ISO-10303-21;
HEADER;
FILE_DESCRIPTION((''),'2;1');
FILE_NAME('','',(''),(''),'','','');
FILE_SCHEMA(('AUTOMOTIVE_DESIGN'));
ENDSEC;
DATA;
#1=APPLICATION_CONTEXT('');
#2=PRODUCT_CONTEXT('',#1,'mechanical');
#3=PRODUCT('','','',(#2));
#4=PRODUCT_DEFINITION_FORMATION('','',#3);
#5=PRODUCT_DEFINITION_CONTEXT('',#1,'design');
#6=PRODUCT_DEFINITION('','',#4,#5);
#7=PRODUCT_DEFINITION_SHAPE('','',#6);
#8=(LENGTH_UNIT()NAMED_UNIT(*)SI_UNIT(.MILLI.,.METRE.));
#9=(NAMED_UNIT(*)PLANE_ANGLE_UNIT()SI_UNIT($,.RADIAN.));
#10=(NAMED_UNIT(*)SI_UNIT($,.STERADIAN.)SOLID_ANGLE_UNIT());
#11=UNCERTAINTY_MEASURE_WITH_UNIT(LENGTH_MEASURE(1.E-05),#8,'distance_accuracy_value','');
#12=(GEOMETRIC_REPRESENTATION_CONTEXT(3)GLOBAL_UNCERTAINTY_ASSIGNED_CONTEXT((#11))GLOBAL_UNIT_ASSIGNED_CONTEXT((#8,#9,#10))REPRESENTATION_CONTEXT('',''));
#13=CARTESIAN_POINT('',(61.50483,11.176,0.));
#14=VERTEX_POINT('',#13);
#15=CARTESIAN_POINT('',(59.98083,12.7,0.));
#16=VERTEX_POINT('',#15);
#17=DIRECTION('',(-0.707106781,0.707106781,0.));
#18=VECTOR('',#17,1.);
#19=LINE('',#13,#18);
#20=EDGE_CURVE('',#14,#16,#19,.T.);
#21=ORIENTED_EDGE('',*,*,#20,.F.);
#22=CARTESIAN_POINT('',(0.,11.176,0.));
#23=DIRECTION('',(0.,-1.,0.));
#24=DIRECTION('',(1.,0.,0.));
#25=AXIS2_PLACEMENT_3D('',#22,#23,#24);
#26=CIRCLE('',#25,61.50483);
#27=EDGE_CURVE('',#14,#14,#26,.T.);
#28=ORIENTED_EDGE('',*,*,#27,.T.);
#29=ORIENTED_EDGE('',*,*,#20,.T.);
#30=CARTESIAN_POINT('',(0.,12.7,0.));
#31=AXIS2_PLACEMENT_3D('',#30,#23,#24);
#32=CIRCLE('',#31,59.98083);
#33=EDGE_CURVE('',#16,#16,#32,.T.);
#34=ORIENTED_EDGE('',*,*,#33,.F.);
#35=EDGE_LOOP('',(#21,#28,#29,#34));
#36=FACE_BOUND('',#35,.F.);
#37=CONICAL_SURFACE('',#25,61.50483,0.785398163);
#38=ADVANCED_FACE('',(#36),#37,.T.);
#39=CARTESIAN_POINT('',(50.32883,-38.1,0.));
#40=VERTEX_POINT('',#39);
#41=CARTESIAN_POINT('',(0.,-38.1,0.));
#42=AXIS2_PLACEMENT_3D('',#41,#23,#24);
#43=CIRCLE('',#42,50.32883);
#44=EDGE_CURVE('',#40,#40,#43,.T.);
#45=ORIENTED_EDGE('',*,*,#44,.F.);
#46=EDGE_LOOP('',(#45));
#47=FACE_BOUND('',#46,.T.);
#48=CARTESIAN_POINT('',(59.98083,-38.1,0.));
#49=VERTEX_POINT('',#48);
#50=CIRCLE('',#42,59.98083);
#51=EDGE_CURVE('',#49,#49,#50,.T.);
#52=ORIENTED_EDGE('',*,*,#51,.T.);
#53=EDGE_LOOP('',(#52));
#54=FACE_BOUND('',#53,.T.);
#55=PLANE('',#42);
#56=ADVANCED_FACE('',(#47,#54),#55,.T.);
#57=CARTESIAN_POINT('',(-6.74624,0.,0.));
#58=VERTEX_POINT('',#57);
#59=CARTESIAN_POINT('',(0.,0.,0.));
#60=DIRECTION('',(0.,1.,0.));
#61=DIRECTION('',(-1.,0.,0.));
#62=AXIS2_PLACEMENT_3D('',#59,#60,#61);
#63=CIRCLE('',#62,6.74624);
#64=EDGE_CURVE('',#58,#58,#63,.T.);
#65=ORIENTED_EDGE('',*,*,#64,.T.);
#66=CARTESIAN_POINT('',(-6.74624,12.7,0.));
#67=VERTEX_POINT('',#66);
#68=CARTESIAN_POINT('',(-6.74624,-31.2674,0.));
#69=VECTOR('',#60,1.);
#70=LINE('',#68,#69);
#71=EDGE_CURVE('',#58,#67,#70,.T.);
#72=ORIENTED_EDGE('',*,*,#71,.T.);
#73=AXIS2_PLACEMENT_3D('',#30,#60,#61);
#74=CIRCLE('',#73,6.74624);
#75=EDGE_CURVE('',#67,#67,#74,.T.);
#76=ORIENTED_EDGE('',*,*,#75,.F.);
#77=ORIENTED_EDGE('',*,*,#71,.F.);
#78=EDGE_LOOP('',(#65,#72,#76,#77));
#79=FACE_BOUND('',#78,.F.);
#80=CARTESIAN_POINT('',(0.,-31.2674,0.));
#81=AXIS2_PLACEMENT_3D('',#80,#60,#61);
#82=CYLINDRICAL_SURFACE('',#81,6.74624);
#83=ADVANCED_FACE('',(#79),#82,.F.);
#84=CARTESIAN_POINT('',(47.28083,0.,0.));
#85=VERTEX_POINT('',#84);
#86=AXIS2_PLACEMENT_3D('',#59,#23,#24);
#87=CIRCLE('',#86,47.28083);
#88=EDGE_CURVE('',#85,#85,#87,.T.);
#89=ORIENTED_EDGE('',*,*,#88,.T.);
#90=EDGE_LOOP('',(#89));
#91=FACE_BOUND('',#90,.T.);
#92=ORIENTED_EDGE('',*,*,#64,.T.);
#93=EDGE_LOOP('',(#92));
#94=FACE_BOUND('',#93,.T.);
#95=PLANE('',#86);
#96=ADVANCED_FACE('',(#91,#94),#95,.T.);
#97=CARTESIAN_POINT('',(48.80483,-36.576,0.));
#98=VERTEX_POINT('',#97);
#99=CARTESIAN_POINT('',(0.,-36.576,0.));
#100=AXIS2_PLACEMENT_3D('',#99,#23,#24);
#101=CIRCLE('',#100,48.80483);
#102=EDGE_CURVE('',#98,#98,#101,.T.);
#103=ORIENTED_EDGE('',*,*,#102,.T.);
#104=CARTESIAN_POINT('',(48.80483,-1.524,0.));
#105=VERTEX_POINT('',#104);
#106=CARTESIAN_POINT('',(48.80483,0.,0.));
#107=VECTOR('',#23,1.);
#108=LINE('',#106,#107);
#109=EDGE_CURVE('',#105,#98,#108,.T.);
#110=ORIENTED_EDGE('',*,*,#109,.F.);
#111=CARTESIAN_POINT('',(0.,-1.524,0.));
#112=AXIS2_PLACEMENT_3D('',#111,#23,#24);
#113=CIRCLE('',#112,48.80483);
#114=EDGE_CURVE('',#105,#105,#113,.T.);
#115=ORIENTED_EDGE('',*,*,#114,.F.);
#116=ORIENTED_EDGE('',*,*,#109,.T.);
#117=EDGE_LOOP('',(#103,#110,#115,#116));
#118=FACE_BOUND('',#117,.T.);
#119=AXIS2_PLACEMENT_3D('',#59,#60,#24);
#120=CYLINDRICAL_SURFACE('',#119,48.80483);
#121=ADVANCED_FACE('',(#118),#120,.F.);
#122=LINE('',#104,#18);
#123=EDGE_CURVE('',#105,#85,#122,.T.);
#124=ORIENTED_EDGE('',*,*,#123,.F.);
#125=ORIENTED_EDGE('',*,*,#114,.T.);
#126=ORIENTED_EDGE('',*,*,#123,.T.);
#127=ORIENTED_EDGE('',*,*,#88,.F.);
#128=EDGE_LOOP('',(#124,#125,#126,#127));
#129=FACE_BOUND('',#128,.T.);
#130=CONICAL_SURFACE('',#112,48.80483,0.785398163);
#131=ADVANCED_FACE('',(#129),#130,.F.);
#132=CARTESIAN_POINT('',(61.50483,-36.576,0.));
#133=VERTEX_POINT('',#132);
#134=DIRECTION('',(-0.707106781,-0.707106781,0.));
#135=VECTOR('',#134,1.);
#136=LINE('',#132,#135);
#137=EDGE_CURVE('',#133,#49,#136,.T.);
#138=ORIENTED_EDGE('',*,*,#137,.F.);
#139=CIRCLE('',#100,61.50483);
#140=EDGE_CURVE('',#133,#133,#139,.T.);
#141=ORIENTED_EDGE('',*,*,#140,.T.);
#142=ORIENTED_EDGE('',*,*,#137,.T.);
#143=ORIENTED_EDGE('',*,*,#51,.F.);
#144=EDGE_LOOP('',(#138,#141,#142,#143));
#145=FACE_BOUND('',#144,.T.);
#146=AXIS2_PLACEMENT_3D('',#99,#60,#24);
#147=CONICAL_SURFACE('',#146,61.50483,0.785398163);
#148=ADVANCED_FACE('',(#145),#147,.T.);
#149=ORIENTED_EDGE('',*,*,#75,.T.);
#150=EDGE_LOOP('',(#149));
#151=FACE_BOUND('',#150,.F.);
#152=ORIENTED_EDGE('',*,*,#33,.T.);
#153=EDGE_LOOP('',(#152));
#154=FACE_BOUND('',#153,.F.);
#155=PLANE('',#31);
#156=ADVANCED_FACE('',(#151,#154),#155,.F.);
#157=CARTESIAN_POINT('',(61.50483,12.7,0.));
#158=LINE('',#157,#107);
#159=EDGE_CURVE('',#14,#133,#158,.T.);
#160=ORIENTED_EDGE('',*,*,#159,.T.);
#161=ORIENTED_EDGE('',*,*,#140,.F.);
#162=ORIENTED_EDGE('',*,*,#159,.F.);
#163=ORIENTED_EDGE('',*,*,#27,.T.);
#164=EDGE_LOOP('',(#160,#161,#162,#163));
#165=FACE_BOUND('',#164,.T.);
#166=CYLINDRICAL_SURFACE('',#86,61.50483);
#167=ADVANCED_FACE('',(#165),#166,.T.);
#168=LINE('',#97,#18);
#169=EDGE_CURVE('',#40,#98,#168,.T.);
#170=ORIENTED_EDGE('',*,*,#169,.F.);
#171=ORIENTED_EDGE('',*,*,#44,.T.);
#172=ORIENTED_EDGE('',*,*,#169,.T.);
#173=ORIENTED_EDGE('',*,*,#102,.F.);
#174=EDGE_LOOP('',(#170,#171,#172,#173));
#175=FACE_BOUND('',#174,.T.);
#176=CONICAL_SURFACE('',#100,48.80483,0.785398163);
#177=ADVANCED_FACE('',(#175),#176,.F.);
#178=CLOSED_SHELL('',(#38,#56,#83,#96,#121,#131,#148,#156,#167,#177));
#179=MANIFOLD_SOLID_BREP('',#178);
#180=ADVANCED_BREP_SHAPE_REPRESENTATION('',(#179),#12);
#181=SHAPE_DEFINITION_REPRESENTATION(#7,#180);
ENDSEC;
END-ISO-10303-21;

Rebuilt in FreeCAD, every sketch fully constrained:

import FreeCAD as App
import Part
import Sketcher
from FreeCAD import Vector
Q = App.Units.Quantity


def edges_at(feature, points):
    """Names of the edges that pass closest to the given points."""
    edges = feature.Shape.Edges
    near = lambda p: min(range(len(edges)), key=lambda i: edges[i].distToShape(Part.Vertex(*p))[0])
    return sorted({f"Edge{near(p) + 1}" for p in points})

doc = App.newDocument("Part")
params = doc.addObject("Spreadsheet::Sheet", "Params")
for row, (alias, value) in enumerate([
    ("pad1_length", "1.5 in"),
    ("pad2_length", "0.5 in"),
    ("hole_diameter", "0.5312 in"),
    ("hole_depth", "1.231 in"),
    ("chamfer_size", "0.06 in"),
], start=1):
    params.set(f"A{row}", alias)
    params.set(f"B{row}", "=" + value)
    params.setAlias(f"B{row}", alias)

body = doc.addObject("PartDesign::Body", "Body")

# Sketch on XZ plane
sketch1 = body.newObject("Sketcher::SketchObject", "Sketch")
sketch1.AttachmentSupport = (doc.getObject("XZ_Plane"), [""])
sketch1.MapMode = "FlatFace"
sketch1.addGeometry(Part.Circle(Vector(0, 0, 0), Vector(0, 0, 1), 62), False)
sketch1.addGeometry(Part.Circle(Vector(0, 0, 0), Vector(0, 0, 1), 49), False)
sketch1.addConstraint(Sketcher.Constraint("Coincident", 0, 3, -1, 1))
sketch1.addConstraint(Sketcher.Constraint("Coincident", 1, 3, -1, 1))
sketch1.addConstraint(Sketcher.Constraint("Diameter", 0, Q("4.8429 in")))
sketch1.addConstraint(Sketcher.Constraint("Diameter", 1, Q("3.8429 in")))
pad1 = body.newObject("PartDesign::Pad", "Pad")
pad1.Profile = sketch1
pad1.setExpression("Length", "Params.pad1_length")

# Sketch on XZ plane
sketch2 = body.newObject("Sketcher::SketchObject", "Sketch001")
sketch2.AttachmentSupport = (doc.getObject("XZ_Plane"), [""])
sketch2.MapMode = "FlatFace"
sketch2.addGeometry(Part.Circle(Vector(0, 0, 0), Vector(0, 0, 1), 62), False)
sketch2.addConstraint(Sketcher.Constraint("Coincident", 0, 3, -1, 1))
sketch2.addConstraint(Sketcher.Constraint("Diameter", 0, Q("4.8429 in")))
pad2 = body.newObject("PartDesign::Pad", "Pad001")
pad2.Profile = sketch2
pad2.setExpression("Length", "Params.pad2_length")
pad2.Reversed = True

# Sketch on XZ plane
sketch3 = body.newObject("Sketcher::SketchObject", "Sketch002")
sketch3.AttachmentSupport = (doc.getObject("XZ_Plane"), [""])
sketch3.MapMode = "FlatFace"
sketch3.addGeometry(Part.Circle(Vector(0, 0, 0), Vector(0, 0, 1), 7), False)
sketch3.addConstraint(Sketcher.Constraint("Coincident", 0, 3, -1, 1))
sketch3.addConstraint(Sketcher.Constraint("Diameter", 0, Q("0.5312 in")))
doc.recompute()
hole = body.newObject("PartDesign::Hole", "Hole")
hole.Profile = sketch3
hole.ThreadType = "None"
hole.setExpression("Diameter", "Params.hole_diameter")
hole.DepthType = "Dimension"
hole.setExpression("Depth", "Params.hole_depth")
hole.DrillPoint = "Angled"
hole.DrillPointAngle = 118
doc.recompute()

chamfer = body.newObject("PartDesign::Chamfer", "Chamfer")
chamfer.Base = (hole, edges_at(hole, [
    (61.505, -12.7, 0),
    (-48.805, 0, 0),
    (-61.505, -38.1, 0),
    (61.505, -12.7, 0),
    (-61.505, 12.7, 0),
    (48.805, -19.05, 0),
    (-48.805, 0, 0),
    (-48.805, -38.1, 0),
]))
chamfer.setExpression("Size", "Params.chamfer_size")

doc.recompute()
